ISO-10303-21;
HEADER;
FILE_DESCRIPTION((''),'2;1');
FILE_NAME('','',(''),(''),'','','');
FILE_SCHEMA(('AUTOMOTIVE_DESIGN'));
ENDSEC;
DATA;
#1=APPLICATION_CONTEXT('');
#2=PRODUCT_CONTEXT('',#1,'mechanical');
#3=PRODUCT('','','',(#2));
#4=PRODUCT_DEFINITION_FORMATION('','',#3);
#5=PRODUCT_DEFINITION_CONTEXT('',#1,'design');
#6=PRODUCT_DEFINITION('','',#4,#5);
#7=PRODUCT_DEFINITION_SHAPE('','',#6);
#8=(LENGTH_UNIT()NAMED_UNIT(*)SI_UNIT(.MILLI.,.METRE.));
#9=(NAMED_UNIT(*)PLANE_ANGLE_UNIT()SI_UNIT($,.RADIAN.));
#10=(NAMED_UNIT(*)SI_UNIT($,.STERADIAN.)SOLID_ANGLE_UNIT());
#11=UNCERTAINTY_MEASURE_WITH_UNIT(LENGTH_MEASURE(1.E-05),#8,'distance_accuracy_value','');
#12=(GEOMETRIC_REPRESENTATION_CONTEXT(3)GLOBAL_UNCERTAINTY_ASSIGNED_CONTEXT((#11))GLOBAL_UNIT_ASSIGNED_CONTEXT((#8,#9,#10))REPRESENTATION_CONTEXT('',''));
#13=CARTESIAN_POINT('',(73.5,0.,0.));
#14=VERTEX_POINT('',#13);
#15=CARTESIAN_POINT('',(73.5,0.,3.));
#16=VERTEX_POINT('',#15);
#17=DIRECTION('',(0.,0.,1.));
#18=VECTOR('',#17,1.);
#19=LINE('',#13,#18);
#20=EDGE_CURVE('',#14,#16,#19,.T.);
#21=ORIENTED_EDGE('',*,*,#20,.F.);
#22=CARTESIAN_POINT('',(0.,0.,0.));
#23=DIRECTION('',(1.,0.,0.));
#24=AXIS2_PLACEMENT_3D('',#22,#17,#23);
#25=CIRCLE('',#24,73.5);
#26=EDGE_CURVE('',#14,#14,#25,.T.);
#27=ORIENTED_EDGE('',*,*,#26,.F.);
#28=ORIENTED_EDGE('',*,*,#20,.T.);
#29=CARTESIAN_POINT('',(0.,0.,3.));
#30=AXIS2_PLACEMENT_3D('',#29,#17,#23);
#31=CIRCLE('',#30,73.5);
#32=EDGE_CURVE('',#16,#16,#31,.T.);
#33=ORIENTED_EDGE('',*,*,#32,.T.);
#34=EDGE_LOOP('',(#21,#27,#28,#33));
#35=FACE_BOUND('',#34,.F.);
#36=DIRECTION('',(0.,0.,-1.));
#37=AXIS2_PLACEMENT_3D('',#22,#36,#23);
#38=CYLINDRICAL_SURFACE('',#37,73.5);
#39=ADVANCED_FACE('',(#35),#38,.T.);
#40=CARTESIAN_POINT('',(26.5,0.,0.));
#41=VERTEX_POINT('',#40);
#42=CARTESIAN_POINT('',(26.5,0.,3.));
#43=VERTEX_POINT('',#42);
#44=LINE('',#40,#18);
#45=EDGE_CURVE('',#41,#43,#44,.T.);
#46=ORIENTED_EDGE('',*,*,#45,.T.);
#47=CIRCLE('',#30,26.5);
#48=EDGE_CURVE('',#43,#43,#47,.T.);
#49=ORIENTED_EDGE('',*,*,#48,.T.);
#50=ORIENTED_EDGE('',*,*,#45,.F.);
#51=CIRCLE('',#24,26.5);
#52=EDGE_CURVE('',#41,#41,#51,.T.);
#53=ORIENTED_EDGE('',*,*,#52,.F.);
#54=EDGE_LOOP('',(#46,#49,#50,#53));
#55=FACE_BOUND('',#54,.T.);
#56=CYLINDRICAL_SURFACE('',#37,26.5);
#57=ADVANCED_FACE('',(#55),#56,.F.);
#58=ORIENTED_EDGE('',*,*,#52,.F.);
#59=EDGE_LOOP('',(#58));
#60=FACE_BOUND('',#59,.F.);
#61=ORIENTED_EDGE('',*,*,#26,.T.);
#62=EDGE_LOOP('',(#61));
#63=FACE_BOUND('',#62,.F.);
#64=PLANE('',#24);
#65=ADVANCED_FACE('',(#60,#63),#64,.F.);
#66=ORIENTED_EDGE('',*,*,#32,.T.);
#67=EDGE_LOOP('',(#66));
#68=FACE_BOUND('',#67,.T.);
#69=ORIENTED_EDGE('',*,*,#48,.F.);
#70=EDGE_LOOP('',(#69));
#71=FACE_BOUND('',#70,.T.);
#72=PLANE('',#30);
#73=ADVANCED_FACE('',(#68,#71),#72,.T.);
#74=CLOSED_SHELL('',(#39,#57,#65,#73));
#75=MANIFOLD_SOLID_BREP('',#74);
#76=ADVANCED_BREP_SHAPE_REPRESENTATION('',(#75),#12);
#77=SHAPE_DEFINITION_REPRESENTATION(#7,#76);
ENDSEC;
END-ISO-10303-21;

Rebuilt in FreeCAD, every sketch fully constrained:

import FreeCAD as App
import Part
import Sketcher

doc = App.newDocument("Part")
body = doc.addObject("PartDesign::Body", "Body")

sketch1 = body.newObject("Sketcher::SketchObject", "Sketch")
sketch1.AttachmentSupport = (doc.getObject("XY_Plane"), [""])
sketch1.MapMode = "FlatFace"
sketch1.addGeometry([
    Part.Circle(App.Vector(0, 0, 0), App.Vector(0, 0, 1), 73.5),
    Part.Circle(App.Vector(0, 0, 0), App.Vector(0, 0, 1), 26.5),
], False)
sketch1.addConstraint([
    Sketcher.Constraint("Coincident", 0, 3, -1, 1),
    Sketcher.Constraint("Coincident", 1, 3, -1, 1),
    Sketcher.Constraint("Diameter", 0, 147.0),
    Sketcher.Constraint("Diameter", 1, 53.0),
])
pad1 = body.newObject("PartDesign::Pad", "Pad")
pad1.Profile = sketch1
pad1.Length = 3

doc.recompute()
